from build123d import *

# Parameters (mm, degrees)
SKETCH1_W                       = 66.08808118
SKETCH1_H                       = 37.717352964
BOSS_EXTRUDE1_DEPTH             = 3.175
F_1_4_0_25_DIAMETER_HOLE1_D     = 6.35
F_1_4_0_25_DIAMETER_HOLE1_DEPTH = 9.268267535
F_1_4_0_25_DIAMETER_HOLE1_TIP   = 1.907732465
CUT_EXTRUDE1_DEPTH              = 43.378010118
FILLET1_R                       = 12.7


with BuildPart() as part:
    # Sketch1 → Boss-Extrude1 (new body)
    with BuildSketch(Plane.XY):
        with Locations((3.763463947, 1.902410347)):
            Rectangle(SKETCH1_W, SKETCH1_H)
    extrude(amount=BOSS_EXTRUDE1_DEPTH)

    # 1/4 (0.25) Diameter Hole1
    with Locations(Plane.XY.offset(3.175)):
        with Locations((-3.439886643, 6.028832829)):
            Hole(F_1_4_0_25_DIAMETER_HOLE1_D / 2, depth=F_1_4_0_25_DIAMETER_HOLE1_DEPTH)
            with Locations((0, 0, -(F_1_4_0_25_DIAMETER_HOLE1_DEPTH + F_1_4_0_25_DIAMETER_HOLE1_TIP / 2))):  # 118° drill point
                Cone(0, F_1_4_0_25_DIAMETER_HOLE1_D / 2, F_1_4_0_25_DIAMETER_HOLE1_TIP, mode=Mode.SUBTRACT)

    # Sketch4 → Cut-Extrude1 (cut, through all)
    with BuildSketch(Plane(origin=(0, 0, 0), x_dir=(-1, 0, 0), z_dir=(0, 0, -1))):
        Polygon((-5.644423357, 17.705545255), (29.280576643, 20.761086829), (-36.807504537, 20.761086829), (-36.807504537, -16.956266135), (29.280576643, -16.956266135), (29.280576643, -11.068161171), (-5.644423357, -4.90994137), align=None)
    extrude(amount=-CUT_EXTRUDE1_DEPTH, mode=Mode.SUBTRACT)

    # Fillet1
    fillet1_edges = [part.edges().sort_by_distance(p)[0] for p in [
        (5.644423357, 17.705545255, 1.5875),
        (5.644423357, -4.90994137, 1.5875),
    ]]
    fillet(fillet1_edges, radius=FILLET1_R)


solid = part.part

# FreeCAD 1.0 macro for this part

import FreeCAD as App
import Part
import Sketcher
Q = App.Units.Quantity


def edges_at(feature, points):
    """Names of the edges that pass closest to the given points."""
    edges = feature.Shape.Edges
    near = lambda p: min(range(len(edges)), key=lambda i: edges[i].distToShape(Part.Vertex(*p))[0])
    return sorted({f"Edge{near(p) + 1}" for p in points})

doc = App.newDocument("Part")
body = doc.addObject("PartDesign::Body", "Body")

# Sketch on XY plane
sketch1 = body.newObject("Sketcher::SketchObject", "Sketch")
sketch1.AttachmentSupport = (doc.getObject("XY_Plane"), [""])
sketch1.MapMode = "FlatFace"
sketch1.addGeometry(Part.LineSegment(App.Vector(-29, 21, 0), App.Vector(-29, -17, 0)), False)
sketch1.addGeometry(Part.LineSegment(App.Vector(-29, -17, 0), App.Vector(37, -17, 0)), False)
sketch1.addGeometry(Part.LineSegment(App.Vector(37, -17, 0), App.Vector(37, 21, 0)), False)
sketch1.addGeometry(Part.LineSegment(App.Vector(37, 21, 0), App.Vector(-29, 21, 0)), False)
sketch1.addConstraint(Sketcher.Constraint("Coincident", 0, 2, 1, 1))
sketch1.addConstraint(Sketcher.Constraint("Coincident", 1, 2, 2, 1))
sketch1.addConstraint(Sketcher.Constraint("Coincident", 2, 2, 3, 1))
sketch1.addConstraint(Sketcher.Constraint("Coincident", 3, 2, 0, 1))
sketch1.addConstraint(Sketcher.Constraint("Vertical", 0))
sketch1.addConstraint(Sketcher.Constraint("Horizontal", 1))
sketch1.addConstraint(Sketcher.Constraint("Vertical", 2))
sketch1.addConstraint(Sketcher.Constraint("Horizontal", 3))
sketch1.addConstraint(Sketcher.Constraint("DistanceX", 1, 1, 1, 2, 66.088081))
sketch1.addConstraint(Sketcher.Constraint("DistanceY", 0, 2, 0, 1, 37.717353))
sketch1.addConstraint(Sketcher.Constraint("DistanceX", 0, 2, -1, 1, 29.280577))
sketch1.addConstraint(Sketcher.Constraint("DistanceY", 0, 2, -1, 1, 16.956266))
pad1 = body.newObject("PartDesign::Pad", "Pad")
pad1.Profile = sketch1
pad1.Length = Q("0.125 in")

# Sketch on XY plane
sketch2 = body.newObject("Sketcher::SketchObject", "Sketch001")
sketch2.AttachmentSupport = (doc.getObject("XY_Plane"), [""])
sketch2.MapMode = "FlatFace"
sketch2.AttachmentOffset = App.Placement(App.Vector(0, 0, 0.125 * 25.4), App.Rotation())
sketch2.addGeometry(Part.Circle(App.Vector(-3.4, 6, 0), App.Vector(0, 0, 1), 3.2), False)
sketch2.addConstraint(Sketcher.Constraint("Diameter", 0, Q("0.25 in")))
sketch2.addConstraint(Sketcher.Constraint("DistanceX", 0, 3, -1, 1, 3.439887))
sketch2.addConstraint(Sketcher.Constraint("DistanceY", -1, 1, 0, 3, 6.028833))
doc.recompute()
hole = body.newObject("PartDesign::Hole", "Hole")
hole.Profile = sketch2
hole.ThreadType = "None"
hole.Diameter = Q("0.25 in")
hole.DepthType = "Dimension"
hole.Depth = 9.268268
hole.DrillPoint = "Angled"
hole.DrillPointAngle = 118

# Sketch on XY plane
sketch3 = body.newObject("Sketcher::SketchObject", "Sketch002")
sketch3.AttachmentSupport = (doc.getObject("XY_Plane"), [""])
sketch3.MapMode = "FlatFace"
sketch3.addGeometry(Part.LineSegment(App.Vector(6, 18, 0), App.Vector(-29, 21, 0)), False)
sketch3.addGeometry(Part.LineSegment(App.Vector(-29, 21, 0), App.Vector(37, 21, 0)), False)
sketch3.addGeometry(Part.LineSegment(App.Vector(37, 21, 0), App.Vector(37, -17, 0)), False)
sketch3.addGeometry(Part.LineSegment(App.Vector(37, -17, 0), App.Vector(-29, -17, 0)), False)
sketch3.addGeometry(Part.LineSegment(App.Vector(-29, -17, 0), App.Vector(-29, -11, 0)), False)
sketch3.addGeometry(Part.LineSegment(App.Vector(-29, -11, 0), App.Vector(6, -5, 0)), False)
sketch3.addGeometry(Part.LineSegment(App.Vector(6, -5, 0), App.Vector(6, 18, 0)), False)
sketch3.addConstraint(Sketcher.Constraint("Coincident", 0, 2, 1, 1))
sketch3.addConstraint(Sketcher.Constraint("Coincident", 1, 2, 2, 1))
sketch3.addConstraint(Sketcher.Constraint("Coincident", 2, 2, 3, 1))
sketch3.addConstraint(Sketcher.Constraint("Coincident", 3, 2, 4, 1))
sketch3.addConstraint(Sketcher.Constraint("Coincident", 4, 2, 5, 1))
sketch3.addConstraint(Sketcher.Constraint("Coincident", 5, 2, 6, 1))
sketch3.addConstraint(Sketcher.Constraint("Coincident", 6, 2, 0, 1))
sketch3.addConstraint(Sketcher.Constraint("Horizontal", 1))
sketch3.addConstraint(Sketcher.Constraint("Vertical", 2))
sketch3.addConstraint(Sketcher.Constraint("Horizontal", 3))
sketch3.addConstraint(Sketcher.Constraint("Vertical", 4))
sketch3.addConstraint(Sketcher.Constraint("Vertical", 6))
sketch3.addConstraint(Sketcher.Constraint("Vertical", 0, 2, 3, 2))
sketch3.addConstraint(Sketcher.Constraint("Angle", 0, Q("175 deg")))
sketch3.addConstraint(Sketcher.Constraint("Angle", 5, Q("10 deg")))
sketch3.addConstraint(Sketcher.Constraint("DistanceX", 4, 2, 5, 2, Q("1.375 in")))
sketch3.addConstraint(Sketcher.Constraint("DistanceX", 1, 1, 1, 2, 66.088081))
sketch3.addConstraint(Sketcher.Constraint("DistanceY", 2, 2, 2, 1, 37.717353))
sketch3.addConstraint(Sketcher.Constraint("DistanceY", 4, 1, 4, 2, 5.888105))
sketch3.addConstraint(Sketcher.Constraint("DistanceY", 4, 2, -1, 1, 11.068161))
sketch3.addConstraint(Sketcher.Constraint("DistanceX", 0, 2, -1, 1, 29.280577))
pocket1 = body.newObject("PartDesign::Pocket", "Pocket")
pocket1.Profile = sketch3
pocket1.Type = "ThroughAll"
pocket1.Reversed = True
doc.recompute()

fillet = body.newObject("PartDesign::Fillet", "Fillet")
fillet.Base = (pocket1, edges_at(pocket1, [(5.644, 17.706, 1.587), (5.644, -4.91, 1.587)]))
fillet.Radius = Q("0.5 in")

doc.recompute()
